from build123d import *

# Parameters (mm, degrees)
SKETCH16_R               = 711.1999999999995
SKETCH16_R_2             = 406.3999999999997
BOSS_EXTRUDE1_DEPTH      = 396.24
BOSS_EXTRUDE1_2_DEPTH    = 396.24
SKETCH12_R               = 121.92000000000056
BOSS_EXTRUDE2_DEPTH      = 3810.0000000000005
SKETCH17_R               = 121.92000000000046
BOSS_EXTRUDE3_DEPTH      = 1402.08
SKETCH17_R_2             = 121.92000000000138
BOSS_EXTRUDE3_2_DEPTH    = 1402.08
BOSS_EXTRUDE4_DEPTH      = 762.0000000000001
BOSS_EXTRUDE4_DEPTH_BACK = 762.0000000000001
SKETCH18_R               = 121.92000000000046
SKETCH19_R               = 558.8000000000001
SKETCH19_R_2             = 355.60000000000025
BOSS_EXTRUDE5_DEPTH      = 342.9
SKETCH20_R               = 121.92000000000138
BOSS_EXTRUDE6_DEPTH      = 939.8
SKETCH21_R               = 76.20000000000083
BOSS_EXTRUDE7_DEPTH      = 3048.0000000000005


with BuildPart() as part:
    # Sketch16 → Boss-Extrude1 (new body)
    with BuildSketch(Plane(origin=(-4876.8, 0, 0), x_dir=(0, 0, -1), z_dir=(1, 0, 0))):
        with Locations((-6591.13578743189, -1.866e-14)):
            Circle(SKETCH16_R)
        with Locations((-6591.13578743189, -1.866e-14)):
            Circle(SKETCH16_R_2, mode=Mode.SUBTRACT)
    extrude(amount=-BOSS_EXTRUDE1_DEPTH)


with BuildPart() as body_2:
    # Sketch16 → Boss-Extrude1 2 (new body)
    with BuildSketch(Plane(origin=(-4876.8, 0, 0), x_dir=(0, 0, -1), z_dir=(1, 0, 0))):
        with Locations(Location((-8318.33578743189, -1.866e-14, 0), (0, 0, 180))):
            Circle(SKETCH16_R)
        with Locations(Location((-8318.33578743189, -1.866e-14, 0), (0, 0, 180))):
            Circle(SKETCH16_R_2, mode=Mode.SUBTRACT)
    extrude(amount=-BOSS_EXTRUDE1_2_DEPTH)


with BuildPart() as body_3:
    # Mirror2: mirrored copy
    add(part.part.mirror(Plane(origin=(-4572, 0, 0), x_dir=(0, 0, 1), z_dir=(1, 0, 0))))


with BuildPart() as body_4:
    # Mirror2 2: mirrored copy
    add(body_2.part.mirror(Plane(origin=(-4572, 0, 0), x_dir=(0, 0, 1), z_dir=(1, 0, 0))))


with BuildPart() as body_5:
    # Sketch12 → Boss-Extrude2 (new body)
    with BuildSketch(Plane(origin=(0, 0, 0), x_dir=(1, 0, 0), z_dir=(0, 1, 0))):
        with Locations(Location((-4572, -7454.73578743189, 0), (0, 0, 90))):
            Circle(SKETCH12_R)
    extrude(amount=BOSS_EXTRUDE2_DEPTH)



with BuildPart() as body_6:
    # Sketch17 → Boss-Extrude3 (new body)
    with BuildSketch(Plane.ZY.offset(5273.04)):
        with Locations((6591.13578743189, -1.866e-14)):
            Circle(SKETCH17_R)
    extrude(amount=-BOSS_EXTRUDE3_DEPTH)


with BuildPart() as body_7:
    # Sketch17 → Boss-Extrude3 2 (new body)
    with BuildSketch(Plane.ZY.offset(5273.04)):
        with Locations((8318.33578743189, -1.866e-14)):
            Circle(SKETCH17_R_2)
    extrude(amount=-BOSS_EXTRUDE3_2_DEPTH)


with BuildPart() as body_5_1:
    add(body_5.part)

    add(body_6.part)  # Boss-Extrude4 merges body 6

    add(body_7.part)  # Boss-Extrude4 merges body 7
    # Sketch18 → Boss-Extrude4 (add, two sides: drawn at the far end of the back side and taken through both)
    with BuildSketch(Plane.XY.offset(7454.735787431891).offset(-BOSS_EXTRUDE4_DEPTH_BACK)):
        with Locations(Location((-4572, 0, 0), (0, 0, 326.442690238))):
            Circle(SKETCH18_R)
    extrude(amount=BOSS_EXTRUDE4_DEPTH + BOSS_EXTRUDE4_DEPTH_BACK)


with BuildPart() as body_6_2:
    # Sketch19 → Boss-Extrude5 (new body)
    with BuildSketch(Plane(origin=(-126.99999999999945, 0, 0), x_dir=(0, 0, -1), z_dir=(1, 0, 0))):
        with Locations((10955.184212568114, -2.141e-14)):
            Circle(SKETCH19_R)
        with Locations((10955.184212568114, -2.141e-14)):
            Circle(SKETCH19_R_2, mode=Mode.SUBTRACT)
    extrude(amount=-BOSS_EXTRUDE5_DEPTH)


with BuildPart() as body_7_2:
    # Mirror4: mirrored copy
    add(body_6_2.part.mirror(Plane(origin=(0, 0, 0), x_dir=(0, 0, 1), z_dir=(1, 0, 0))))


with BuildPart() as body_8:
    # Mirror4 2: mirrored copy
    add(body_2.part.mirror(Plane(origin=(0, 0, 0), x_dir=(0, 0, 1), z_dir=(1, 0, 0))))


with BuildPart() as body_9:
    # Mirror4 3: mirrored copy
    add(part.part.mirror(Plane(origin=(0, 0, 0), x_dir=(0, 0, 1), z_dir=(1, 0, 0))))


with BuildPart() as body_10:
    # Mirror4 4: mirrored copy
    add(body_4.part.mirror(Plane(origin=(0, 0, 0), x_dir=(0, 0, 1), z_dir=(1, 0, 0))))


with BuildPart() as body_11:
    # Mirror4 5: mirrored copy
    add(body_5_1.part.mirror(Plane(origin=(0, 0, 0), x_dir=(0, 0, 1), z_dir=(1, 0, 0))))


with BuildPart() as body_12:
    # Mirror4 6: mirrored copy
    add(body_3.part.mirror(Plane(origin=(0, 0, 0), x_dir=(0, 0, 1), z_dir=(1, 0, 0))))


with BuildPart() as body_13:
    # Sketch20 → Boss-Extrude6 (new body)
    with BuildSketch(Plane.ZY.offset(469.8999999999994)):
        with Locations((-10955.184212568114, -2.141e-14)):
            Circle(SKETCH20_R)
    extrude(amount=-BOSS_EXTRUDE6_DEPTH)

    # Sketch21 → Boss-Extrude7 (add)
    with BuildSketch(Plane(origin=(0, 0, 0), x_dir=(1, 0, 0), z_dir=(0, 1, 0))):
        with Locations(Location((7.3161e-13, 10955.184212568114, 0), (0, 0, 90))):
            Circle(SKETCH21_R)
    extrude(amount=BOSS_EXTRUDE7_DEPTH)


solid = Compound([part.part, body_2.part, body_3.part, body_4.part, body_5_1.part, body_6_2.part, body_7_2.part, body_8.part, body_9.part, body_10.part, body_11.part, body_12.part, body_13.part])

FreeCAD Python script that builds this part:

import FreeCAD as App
import Part
import Sketcher

V = App.Vector
Q = App.Units.Quantity

doc = App.newDocument("Part")
body = doc.addObject("PartDesign::Body", "Body")

sketch1 = doc.addObject("Sketcher::SketchObject", "Sketch")
body.addObject(sketch1)
sketch1.AttachmentSupport = (doc.YZ_Plane, [""])
sketch1.MapMode = "FlatFace"
sketch1.AttachmentOffset = App.Placement(V(0, 0, -192 * 25.4), App.Rotation())
sketch1.addGeometry([
    Part.Circle(V(0, 6591.135787, 0), V(0, 0, 1), 711.2),
    Part.Circle(V(0, 6591.135787, 0), V(0, 0, 1), 406.4),
], False)
sketch1.addConstraint([
    Sketcher.Constraint("Coincident", 1, 3, 0, 3),
    Sketcher.Constraint("PointOnObject", 0, 3, -2),
    Sketcher.Constraint("Diameter", 0, Q("56 in")),
    Sketcher.Constraint("Diameter", 1, Q("32 in")),
    Sketcher.Constraint("DistanceY", -1, 1, 0, 3, 6591.135787),
])
pad1 = doc.addObject("PartDesign::Pad", "Pad")
body.addObject(pad1)
pad1.Profile = sketch1
pad1.Length = Q("15.6 in")
pad1.Reversed = True
body2 = doc.addObject("PartDesign::Body", "Body001")

sketch2 = doc.addObject("Sketcher::SketchObject", "Sketch001")
body2.addObject(sketch2)
sketch2.AttachmentSupport = (doc.getObject("YZ_Plane001"), [""])
sketch2.MapMode = "FlatFace"
sketch2.AttachmentOffset = App.Placement(V(0, 0, -192 * 25.4), App.Rotation())
sketch2.addGeometry([
    Part.Circle(V(0, 8318.335787, 0), V(0, 0, 1), 711.2),
    Part.Circle(V(0, 8318.335787, 0), V(0, 0, 1), 406.4),
], False)
sketch2.addConstraint([
    Sketcher.Constraint("Coincident", 1, 3, 0, 3),
    Sketcher.Constraint("PointOnObject", 0, 3, -2),
    Sketcher.Constraint("Diameter", 0, Q("56 in")),
    Sketcher.Constraint("Diameter", 1, Q("32 in")),
    Sketcher.Constraint("DistanceY", -1, 1, 0, 3, 8318.335787),
])
pad2 = doc.addObject("PartDesign::Pad", "Pad001")
body2.addObject(pad2)
pad2.Profile = sketch2
pad2.Length = Q("15.6 in")
pad2.Reversed = True
body3 = doc.addObject("PartDesign::Body", "Body002")
doc.recompute()

mirroring = doc.addObject("Part::Mirroring", "Mirroring")
mirroring.Source = body
mirroring.Base = V(-4572, 0, 0)
mirroring.Normal = V(1, 0, 0)
body3.BaseFeature = mirroring
doc.recompute()
body4 = doc.addObject("PartDesign::Body", "Body003")
doc.recompute()

mirroring2 = doc.addObject("Part::Mirroring", "Mirroring001")
mirroring2.Source = body2
mirroring2.Base = V(-4572, 0, 0)
mirroring2.Normal = V(1, 0, 0)
body4.BaseFeature = mirroring2
doc.recompute()
body5 = doc.addObject("PartDesign::Body", "Body004")

sketch3 = doc.addObject("Sketcher::SketchObject", "Sketch002")
body5.addObject(sketch3)
sketch3.AttachmentSupport = (doc.getObject("XZ_Plane004"), [""])
sketch3.MapMode = "FlatFace"
sketch3.addGeometry(Part.Circle(V(-4572, 7454.735787, 0), V(0, 0, 1), 121.92), False)
sketch3.addConstraint([
    Sketcher.Constraint("Diameter", 0, Q("9.6 in")),
    Sketcher.Constraint("DistanceX", 0, 3, -1, 1, Q("180 in")),
    Sketcher.Constraint("DistanceY", -1, 1, 0, 3, 7454.735787),
])
pad3 = doc.addObject("PartDesign::Pad", "Pad002")
body5.addObject(pad3)
pad3.Profile = sketch3
pad3.Length = Q("150 in")
pad3.Reversed = True
body6 = doc.addObject("PartDesign::Body", "Body005")

sketch4 = doc.addObject("Sketcher::SketchObject", "Sketch003")
body6.addObject(sketch4)
sketch4.AttachmentSupport = (doc.getObject("YZ_Plane005"), [""])
sketch4.MapMode = "FlatFace"
sketch4.AttachmentOffset = App.Placement(V(0, 0, -207.6 * 25.4), App.Rotation())
sketch4.addGeometry(Part.Circle(V(0, 6591.135787, 0), V(0, 0, 1), 121.92), False)
sketch4.addConstraint([
    Sketcher.Constraint("PointOnObject", 0, 3, -2),
    Sketcher.Constraint("Diameter", 0, Q("9.6 in")),
    Sketcher.Constraint("DistanceY", -1, 1, 0, 3, 6591.135787),
])
pad4 = doc.addObject("PartDesign::Pad", "Pad003")
body6.addObject(pad4)
pad4.Profile = sketch4
pad4.Length = Q("55.2 in")
body7 = doc.addObject("PartDesign::Body", "Body006")

sketch5 = doc.addObject("Sketcher::SketchObject", "Sketch004")
body7.addObject(sketch5)
sketch5.AttachmentSupport = (doc.getObject("YZ_Plane006"), [""])
sketch5.MapMode = "FlatFace"
sketch5.AttachmentOffset = App.Placement(V(0, 0, -207.6 * 25.4), App.Rotation())
sketch5.addGeometry(Part.Circle(V(0, 8318.335787, 0), V(0, 0, 1), 121.92), False)
sketch5.addConstraint([
    Sketcher.Constraint("PointOnObject", 0, 3, -2),
    Sketcher.Constraint("Diameter", 0, Q("9.6 in")),
    Sketcher.Constraint("DistanceY", -1, 1, 0, 3, 8318.335787),
])
pad5 = doc.addObject("PartDesign::Pad", "Pad004")
body7.addObject(pad5)
pad5.Profile = sketch5
pad5.Length = Q("55.2 in")
body5.AllowCompound = True
doc.recompute()

boolean = doc.addObject("PartDesign::Boolean", "Boolean")
body5.addObject(boolean)
boolean.Type = "Fuse"
boolean.addObjects([body6])
doc.recompute()

boolean2 = doc.addObject("PartDesign::Boolean", "Boolean001")
body5.addObject(boolean2)
boolean2.Type = "Fuse"
boolean2.addObjects([body7])

sketch6 = doc.addObject("Sketcher::SketchObject", "Sketch005")
body5.addObject(sketch6)
sketch6.AttachmentSupport = (doc.getObject("XY_Plane004"), [""])
sketch6.MapMode = "FlatFace"
sketch6.AttachmentOffset = App.Placement(V(0, 0, 7454.735787), App.Rotation())
sketch6.addGeometry(Part.Circle(V(-4572, 0, 0), V(0, 0, 1), 121.92), False)
sketch6.addConstraint([
    Sketcher.Constraint("PointOnObject", 0, 3, -1),
    Sketcher.Constraint("Diameter", 0, Q("9.6 in")),
    Sketcher.Constraint("DistanceX", 0, 3, -1, 1, Q("180 in")),
])
pad6 = doc.addObject("PartDesign::Pad", "Pad005")
body5.addObject(pad6)
pad6.Profile = sketch6
pad6.Type = "TwoLengths"
pad6.Length = Q("30 in")
pad6.Length2 = Q("30 in")
body8 = doc.addObject("PartDesign::Body", "Body007")

sketch7 = doc.addObject("Sketcher::SketchObject", "Sketch006")
body8.addObject(sketch7)
sketch7.AttachmentSupport = (doc.getObject("YZ_Plane007"), [""])
sketch7.MapMode = "FlatFace"
sketch7.AttachmentOffset = App.Placement(V(0, 0, -5 * 25.4), App.Rotation())
sketch7.addGeometry([
    Part.Circle(V(0, -10955.184213, 0), V(0, 0, 1), 558.8),
    Part.Circle(V(0, -10955.184213, 0), V(0, 0, 1), 355.6),
], False)
sketch7.addConstraint([
    Sketcher.Constraint("Coincident", 1, 3, 0, 3),
    Sketcher.Constraint("PointOnObject", 0, 3, -2),
    Sketcher.Constraint("Diameter", 0, Q("44 in")),
    Sketcher.Constraint("Diameter", 1, Q("28 in")),
    Sketcher.Constraint("DistanceY", 0, 3, -1, 1, 10955.184213),
])
pad7 = doc.addObject("PartDesign::Pad", "Pad006")
body8.addObject(pad7)
pad7.Profile = sketch7
pad7.Length = Q("13.5 in")
pad7.Reversed = True
body9 = doc.addObject("PartDesign::Body", "Body008")
doc.recompute()

mirroring3 = doc.addObject("Part::Mirroring", "Mirroring002")
mirroring3.Source = body8
mirroring3.Base = V(0, 0, 0)
mirroring3.Normal = V(1, 0, 0)
body9.BaseFeature = mirroring3
doc.recompute()
body10 = doc.addObject("PartDesign::Body", "Body009")
doc.recompute()

mirroring4 = doc.addObject("Part::Mirroring", "Mirroring003")
mirroring4.Source = body2
mirroring4.Base = V(0, 0, 0)
mirroring4.Normal = V(1, 0, 0)
body10.BaseFeature = mirroring4
doc.recompute()
body11 = doc.addObject("PartDesign::Body", "Body010")
doc.recompute()

mirroring5 = doc.addObject("Part::Mirroring", "Mirroring004")
mirroring5.Source = body
mirroring5.Base = V(0, 0, 0)
mirroring5.Normal = V(1, 0, 0)
body11.BaseFeature = mirroring5
doc.recompute()
body12 = doc.addObject("PartDesign::Body", "Body011")
doc.recompute()

mirroring6 = doc.addObject("Part::Mirroring", "Mirroring005")
mirroring6.Source = body4
mirroring6.Base = V(0, 0, 0)
mirroring6.Normal = V(1, 0, 0)
body12.BaseFeature = mirroring6
doc.recompute()
body13 = doc.addObject("PartDesign::Body", "Body012")
doc.recompute()

mirroring7 = doc.addObject("Part::Mirroring", "Mirroring006")
mirroring7.Source = body5
mirroring7.Base = V(0, 0, 0)
mirroring7.Normal = V(1, 0, 0)
body13.BaseFeature = mirroring7
doc.recompute()
body14 = doc.addObject("PartDesign::Body", "Body013")
doc.recompute()

mirroring8 = doc.addObject("Part::Mirroring", "Mirroring007")
mirroring8.Source = body3
mirroring8.Base = V(0, 0, 0)
mirroring8.Normal = V(1, 0, 0)
body14.BaseFeature = mirroring8
doc.recompute()
body15 = doc.addObject("PartDesign::Body", "Body014")

sketch8 = doc.addObject("Sketcher::SketchObject", "Sketch007")
body15.addObject(sketch8)
sketch8.AttachmentSupport = (doc.getObject("YZ_Plane014"), [""])
sketch8.MapMode = "FlatFace"
sketch8.AttachmentOffset = App.Placement(V(0, 0, -18.5 * 25.4), App.Rotation())
sketch8.addGeometry(Part.Circle(V(0, -10955.184213, 0), V(0, 0, 1), 121.92), False)
sketch8.addConstraint([
    Sketcher.Constraint("PointOnObject", 0, 3, -2),
    Sketcher.Constraint("Diameter", 0, Q("9.6 in")),
    Sketcher.Constraint("DistanceY", 0, 3, -1, 1, 10955.184213),
])
pad8 = doc.addObject("PartDesign::Pad", "Pad007")
body15.addObject(pad8)
pad8.Profile = sketch8
pad8.Length = Q("37 in")

sketch9 = doc.addObject("Sketcher::SketchObject", "Sketch008")
body15.addObject(sketch9)
sketch9.AttachmentSupport = (doc.getObject("XZ_Plane014"), [""])
sketch9.MapMode = "FlatFace"
sketch9.addGeometry(Part.Circle(V(0, -10955.184213, 0), V(0, 0, 1), 76.2), False)
sketch9.addConstraint([
    Sketcher.Constraint("PointOnObject", 0, 3, -2),
    Sketcher.Constraint("Diameter", 0, Q("6 in")),
    Sketcher.Constraint("DistanceY", 0, 3, -1, 1, 10955.184213),
])
pad9 = doc.addObject("PartDesign::Pad", "Pad008")
body15.addObject(pad9)
pad9.Profile = sketch9
pad9.Length = Q("120 in")
pad9.Reversed = True
mirroring.Visibility = False
mirroring2.Visibility = False
mirroring3.Visibility = False
mirroring4.Visibility = False
mirroring5.Visibility = False
mirroring6.Visibility = False
mirroring7.Visibility = False
mirroring8.Visibility = False

doc.recompute()
